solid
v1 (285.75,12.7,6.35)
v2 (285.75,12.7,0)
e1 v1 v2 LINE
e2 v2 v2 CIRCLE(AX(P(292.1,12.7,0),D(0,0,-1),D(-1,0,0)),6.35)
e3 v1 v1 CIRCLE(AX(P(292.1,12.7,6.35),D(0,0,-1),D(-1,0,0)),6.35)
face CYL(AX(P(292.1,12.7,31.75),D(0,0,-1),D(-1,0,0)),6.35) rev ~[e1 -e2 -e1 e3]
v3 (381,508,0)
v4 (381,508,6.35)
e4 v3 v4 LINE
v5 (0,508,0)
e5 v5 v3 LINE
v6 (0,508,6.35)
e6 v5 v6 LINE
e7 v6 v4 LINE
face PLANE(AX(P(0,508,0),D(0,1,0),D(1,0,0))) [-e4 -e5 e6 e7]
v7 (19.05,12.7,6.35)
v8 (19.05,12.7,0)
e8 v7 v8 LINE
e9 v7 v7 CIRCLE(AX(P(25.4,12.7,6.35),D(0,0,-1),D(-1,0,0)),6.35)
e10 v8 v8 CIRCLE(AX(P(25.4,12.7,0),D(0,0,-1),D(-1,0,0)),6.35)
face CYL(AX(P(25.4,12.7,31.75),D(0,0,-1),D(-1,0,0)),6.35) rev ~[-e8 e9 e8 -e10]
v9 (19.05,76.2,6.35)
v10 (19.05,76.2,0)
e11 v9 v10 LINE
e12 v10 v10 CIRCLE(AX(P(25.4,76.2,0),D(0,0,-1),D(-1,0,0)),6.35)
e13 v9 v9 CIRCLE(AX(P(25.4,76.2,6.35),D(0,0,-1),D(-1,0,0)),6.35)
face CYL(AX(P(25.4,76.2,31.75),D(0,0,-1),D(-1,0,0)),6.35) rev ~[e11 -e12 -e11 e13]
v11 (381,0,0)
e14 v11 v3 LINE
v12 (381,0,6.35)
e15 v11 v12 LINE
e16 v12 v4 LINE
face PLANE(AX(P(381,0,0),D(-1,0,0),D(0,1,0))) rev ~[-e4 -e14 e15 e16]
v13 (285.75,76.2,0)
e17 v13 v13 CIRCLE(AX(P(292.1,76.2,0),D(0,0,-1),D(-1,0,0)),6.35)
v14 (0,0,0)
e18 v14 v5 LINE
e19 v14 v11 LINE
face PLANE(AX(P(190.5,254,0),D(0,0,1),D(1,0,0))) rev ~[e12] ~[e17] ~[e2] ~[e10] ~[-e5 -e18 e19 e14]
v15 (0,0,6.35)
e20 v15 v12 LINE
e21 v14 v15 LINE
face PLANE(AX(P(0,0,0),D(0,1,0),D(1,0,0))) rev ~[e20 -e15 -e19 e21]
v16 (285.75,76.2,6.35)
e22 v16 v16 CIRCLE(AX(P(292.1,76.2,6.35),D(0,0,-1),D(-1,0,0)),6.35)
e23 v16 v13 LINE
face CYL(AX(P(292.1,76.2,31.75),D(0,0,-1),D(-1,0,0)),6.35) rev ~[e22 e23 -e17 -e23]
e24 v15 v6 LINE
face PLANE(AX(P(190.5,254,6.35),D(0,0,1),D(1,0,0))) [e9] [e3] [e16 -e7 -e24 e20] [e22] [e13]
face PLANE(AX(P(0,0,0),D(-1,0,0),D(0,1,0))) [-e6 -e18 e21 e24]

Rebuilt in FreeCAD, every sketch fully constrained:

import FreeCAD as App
import Part
import Sketcher
from FreeCAD import Vector
Q = App.Units.Quantity

doc = App.newDocument("Part")
params = doc.addObject("Spreadsheet::Sheet", "Params")
for row, (alias, value) in enumerate([
    ("sketch1_width", "15 in"),
    ("sketch1_height", "20 in"),
    ("pad1_length", "0.25 in"),
    ("sketch2_diameter", "0.5 in"),
    ("hole_diameter", "0.5 in"),
    ("hole_depth", "1 in"),
], start=1):
    params.set(f"A{row}", alias)
    params.set(f"B{row}", "=" + value)
    params.setAlias(f"B{row}", alias)

body = doc.addObject("PartDesign::Body", "Body")

# Sketch on XY plane
sketch1 = doc.addObject("Sketcher::SketchObject", "Sketch")
body.addObject(sketch1)
sketch1.AttachmentSupport = (doc.XY_Plane, [""])
sketch1.MapMode = "FlatFace"
sketch1.addGeometry(Part.LineSegment(Vector(0, 508, 0), Vector(0, 0, 0)), False)
sketch1.addGeometry(Part.LineSegment(Vector(0, 0, 0), Vector(381, 0, 0)), False)
sketch1.addGeometry(Part.LineSegment(Vector(381, 0, 0), Vector(381, 508, 0)), False)
sketch1.addGeometry(Part.LineSegment(Vector(381, 508, 0), Vector(0, 508, 0)), False)
sketch1.addConstraint(Sketcher.Constraint("Coincident", 0, 2, 1, 1))
sketch1.addConstraint(Sketcher.Constraint("Coincident", 1, 2, 2, 1))
sketch1.addConstraint(Sketcher.Constraint("Coincident", 2, 2, 3, 1))
sketch1.addConstraint(Sketcher.Constraint("Coincident", 3, 2, 0, 1))
sketch1.addConstraint(Sketcher.Constraint("Vertical", 0))
sketch1.addConstraint(Sketcher.Constraint("Horizontal", 1))
sketch1.addConstraint(Sketcher.Constraint("Vertical", 2))
sketch1.addConstraint(Sketcher.Constraint("Horizontal", 3))
sketch1.addConstraint(Sketcher.Constraint("Coincident", 0, 2, -1, 1))
sketch1.addConstraint(Sketcher.Constraint("DistanceX", 1, 1, 1, 2, Q("15 in")))
sketch1.addConstraint(Sketcher.Constraint("DistanceY", 0, 2, 0, 1, Q("20 in")))
sketch1.setExpression("Constraints[9]", "Params.sketch1_width")
sketch1.setExpression("Constraints[10]", "Params.sketch1_height")
pad1 = doc.addObject("PartDesign::Pad", "Pad")
body.addObject(pad1)
pad1.Profile = sketch1
pad1.setExpression("Length", "Params.pad1_length")

# Sketch on XY plane
sketch2 = doc.addObject("Sketcher::SketchObject", "Sketch001")
body.addObject(sketch2)
sketch2.AttachmentSupport = (doc.XY_Plane, [""])
sketch2.MapMode = "FlatFace"
sketch2.AttachmentOffset = App.Placement(Vector(0, 0, 0.25 * 25.4), App.Rotation())
sketch2.addGeometry(Part.Circle(Vector(25, 13, 0), Vector(0, 0, 1), 6), False)
sketch2.addGeometry(Part.Circle(Vector(25, 76, 0), Vector(0, 0, 1), 6), False)
sketch2.addGeometry(Part.Circle(Vector(292, 76, 0), Vector(0, 0, 1), 6), False)
sketch2.addGeometry(Part.Circle(Vector(292, 13, 0), Vector(0, 0, 1), 6), False)
sketch2.addConstraint(Sketcher.Constraint("Equal", 0, 1))
sketch2.addConstraint(Sketcher.Constraint("Equal", 1, 2))
sketch2.addConstraint(Sketcher.Constraint("Equal", 2, 3))
sketch2.addConstraint(Sketcher.Constraint("Horizontal", 1, 3, 2, 3))
sketch2.addConstraint(Sketcher.Constraint("Horizontal", 0, 3, 3, 3))
sketch2.addConstraint(Sketcher.Constraint("Vertical", 0, 3, 1, 3))
sketch2.addConstraint(Sketcher.Constraint("Vertical", 2, 3, 3, 3))
sketch2.addConstraint(Sketcher.Constraint("Diameter", 0, Q("0.5 in")))
sketch2.addConstraint(Sketcher.Constraint("DistanceX", -1, 1, 0, 3, Q("1 in")))
sketch2.addConstraint(Sketcher.Constraint("DistanceY", -1, 1, 1, 3, Q("3 in")))
sketch2.addConstraint(Sketcher.Constraint("DistanceY", -1, 1, 0, 3, Q("0.5 in")))
sketch2.addConstraint(Sketcher.Constraint("DistanceX", -1, 1, 2, 3, Q("11.5 in")))
sketch2.setExpression("Constraints[7]", "Params.sketch2_diameter")
doc.recompute()
hole = doc.addObject("PartDesign::Hole", "Hole")
body.addObject(hole)
hole.Profile = sketch2
hole.ThreadType = "None"
hole.setExpression("Diameter", "Params.hole_diameter")
hole.DepthType = "Dimension"
hole.setExpression("Depth", "Params.hole_depth")
hole.DrillPoint = "Flat"

doc.recompute()
